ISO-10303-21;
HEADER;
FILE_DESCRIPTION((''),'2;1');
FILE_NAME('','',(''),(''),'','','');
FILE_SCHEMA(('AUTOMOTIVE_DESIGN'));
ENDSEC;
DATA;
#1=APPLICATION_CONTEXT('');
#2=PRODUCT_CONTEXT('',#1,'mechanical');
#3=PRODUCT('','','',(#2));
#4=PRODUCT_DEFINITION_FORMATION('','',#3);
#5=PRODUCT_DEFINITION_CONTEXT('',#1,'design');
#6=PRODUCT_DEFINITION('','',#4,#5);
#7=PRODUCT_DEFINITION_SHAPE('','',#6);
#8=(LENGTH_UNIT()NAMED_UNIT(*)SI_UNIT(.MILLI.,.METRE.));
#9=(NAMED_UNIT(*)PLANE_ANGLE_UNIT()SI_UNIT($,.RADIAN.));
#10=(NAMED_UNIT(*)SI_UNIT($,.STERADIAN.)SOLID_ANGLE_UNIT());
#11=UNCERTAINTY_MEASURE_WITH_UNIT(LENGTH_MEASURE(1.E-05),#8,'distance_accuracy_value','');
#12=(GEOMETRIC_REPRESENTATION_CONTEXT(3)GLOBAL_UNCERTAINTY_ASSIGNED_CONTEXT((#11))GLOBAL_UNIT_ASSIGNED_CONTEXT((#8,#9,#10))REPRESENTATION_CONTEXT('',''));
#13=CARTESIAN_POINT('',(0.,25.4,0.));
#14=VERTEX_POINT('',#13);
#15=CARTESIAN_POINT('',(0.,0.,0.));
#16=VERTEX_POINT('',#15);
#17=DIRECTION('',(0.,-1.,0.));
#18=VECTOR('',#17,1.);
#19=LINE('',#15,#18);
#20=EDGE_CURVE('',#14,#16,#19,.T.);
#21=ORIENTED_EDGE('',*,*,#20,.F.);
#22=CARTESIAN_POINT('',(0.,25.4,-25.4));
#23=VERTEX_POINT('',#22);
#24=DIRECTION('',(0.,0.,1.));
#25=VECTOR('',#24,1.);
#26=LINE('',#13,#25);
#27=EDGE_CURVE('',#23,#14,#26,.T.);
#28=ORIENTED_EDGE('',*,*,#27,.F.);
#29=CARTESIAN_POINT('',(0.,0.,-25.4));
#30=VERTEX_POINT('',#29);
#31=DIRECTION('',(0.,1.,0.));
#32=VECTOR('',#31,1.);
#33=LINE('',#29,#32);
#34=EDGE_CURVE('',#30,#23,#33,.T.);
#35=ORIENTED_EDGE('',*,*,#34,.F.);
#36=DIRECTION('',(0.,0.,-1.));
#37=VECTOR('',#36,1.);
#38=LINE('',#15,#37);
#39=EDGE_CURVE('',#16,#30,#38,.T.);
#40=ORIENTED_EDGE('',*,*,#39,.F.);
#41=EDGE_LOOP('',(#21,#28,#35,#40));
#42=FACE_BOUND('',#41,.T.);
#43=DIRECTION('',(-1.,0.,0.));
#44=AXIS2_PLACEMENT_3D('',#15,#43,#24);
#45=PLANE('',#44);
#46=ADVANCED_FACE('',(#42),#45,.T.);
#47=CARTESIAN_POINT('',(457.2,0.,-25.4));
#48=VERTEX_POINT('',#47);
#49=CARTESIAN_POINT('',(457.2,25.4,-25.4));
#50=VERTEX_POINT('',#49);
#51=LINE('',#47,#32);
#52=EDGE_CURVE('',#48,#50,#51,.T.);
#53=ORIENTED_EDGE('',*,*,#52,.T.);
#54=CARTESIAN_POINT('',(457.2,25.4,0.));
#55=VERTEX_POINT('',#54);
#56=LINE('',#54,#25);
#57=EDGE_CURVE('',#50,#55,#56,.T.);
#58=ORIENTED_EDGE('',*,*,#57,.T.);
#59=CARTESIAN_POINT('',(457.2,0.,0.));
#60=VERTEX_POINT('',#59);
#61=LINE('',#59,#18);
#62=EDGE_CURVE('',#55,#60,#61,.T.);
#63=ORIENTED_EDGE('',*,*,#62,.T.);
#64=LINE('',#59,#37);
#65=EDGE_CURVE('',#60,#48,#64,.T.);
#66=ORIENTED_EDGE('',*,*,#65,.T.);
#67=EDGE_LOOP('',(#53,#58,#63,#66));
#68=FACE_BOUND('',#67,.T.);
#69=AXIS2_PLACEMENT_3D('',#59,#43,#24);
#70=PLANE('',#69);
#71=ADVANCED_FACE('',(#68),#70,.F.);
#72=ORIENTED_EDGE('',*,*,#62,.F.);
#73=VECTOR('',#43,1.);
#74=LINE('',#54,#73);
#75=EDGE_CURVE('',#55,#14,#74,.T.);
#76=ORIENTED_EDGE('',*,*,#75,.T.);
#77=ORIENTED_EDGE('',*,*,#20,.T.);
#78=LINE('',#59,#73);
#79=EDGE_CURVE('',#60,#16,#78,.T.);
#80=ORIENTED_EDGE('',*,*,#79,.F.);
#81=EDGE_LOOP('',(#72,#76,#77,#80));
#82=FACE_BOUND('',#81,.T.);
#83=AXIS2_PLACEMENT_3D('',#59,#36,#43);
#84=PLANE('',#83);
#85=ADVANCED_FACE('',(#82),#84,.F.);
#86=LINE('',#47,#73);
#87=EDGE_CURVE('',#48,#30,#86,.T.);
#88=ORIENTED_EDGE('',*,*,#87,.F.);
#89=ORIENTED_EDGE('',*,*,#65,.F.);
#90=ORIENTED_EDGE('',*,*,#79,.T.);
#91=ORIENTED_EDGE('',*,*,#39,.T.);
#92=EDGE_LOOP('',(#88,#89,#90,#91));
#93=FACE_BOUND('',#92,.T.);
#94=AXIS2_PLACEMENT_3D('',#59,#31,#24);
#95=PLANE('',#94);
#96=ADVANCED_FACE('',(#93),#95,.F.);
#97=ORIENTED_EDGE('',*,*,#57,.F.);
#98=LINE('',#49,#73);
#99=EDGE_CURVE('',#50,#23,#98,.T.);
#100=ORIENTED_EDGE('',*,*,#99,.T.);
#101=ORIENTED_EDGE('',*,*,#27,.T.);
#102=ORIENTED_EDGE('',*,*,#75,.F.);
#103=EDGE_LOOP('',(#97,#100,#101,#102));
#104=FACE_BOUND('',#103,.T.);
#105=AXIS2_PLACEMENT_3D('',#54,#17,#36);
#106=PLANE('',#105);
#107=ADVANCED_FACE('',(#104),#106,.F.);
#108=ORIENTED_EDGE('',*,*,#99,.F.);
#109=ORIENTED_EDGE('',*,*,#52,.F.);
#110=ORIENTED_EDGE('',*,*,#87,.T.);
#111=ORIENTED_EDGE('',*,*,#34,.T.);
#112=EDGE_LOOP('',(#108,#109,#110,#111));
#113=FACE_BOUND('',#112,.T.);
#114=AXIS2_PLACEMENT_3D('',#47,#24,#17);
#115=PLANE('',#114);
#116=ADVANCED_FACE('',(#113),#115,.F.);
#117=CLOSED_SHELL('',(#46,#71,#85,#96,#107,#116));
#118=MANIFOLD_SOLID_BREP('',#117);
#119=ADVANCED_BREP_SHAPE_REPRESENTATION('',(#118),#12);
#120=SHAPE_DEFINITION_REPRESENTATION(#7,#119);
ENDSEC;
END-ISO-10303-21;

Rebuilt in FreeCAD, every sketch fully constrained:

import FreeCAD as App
import Part
import Sketcher
Q = App.Units.Quantity


def add_polygon(sketch, points):
    """Adds a closed chain of lines whose ends are joined by coincident constraints."""
    first, n = sketch.GeometryCount, len(points)
    for a, b in zip(points, points[1:] + points[:1]):
        sketch.addGeometry(Part.LineSegment(App.Vector(*a, 0), App.Vector(*b, 0)), False)
    for i in range(n):
        sketch.addConstraint(Sketcher.Constraint("Coincident", first + i, 2, first + (i + 1) % n, 1))

doc = App.newDocument("Part")
body = doc.addObject("PartDesign::Body", "Body")

# Sketch on YZ plane
sketch1 = body.newObject("Sketcher::SketchObject", "Sketch")
sketch1.AttachmentSupport = (doc.getObject("YZ_Plane"), [""])
sketch1.MapMode = "FlatFace"
add_polygon(sketch1, [(25.4, 0), (0, 0), (0, -25.4), (25.4, -25.4)])  # lines 0-3
sketch1.addConstraint([
    Sketcher.Constraint("Horizontal", 0),
    Sketcher.Constraint("Vertical", 1),
    Sketcher.Constraint("Horizontal", 2),
    Sketcher.Constraint("Vertical", 3),
    Sketcher.Constraint("Coincident", 0, 2, -1, 1),
    Sketcher.Constraint("Equal", 2, 1),
    Sketcher.Constraint("DistanceX", 0, 2, 0, 1, Q("1 in")),
])
pad1 = body.newObject("PartDesign::Pad", "Pad")
pad1.Profile = sketch1
pad1.Length = Q("18 in")

doc.recompute()
